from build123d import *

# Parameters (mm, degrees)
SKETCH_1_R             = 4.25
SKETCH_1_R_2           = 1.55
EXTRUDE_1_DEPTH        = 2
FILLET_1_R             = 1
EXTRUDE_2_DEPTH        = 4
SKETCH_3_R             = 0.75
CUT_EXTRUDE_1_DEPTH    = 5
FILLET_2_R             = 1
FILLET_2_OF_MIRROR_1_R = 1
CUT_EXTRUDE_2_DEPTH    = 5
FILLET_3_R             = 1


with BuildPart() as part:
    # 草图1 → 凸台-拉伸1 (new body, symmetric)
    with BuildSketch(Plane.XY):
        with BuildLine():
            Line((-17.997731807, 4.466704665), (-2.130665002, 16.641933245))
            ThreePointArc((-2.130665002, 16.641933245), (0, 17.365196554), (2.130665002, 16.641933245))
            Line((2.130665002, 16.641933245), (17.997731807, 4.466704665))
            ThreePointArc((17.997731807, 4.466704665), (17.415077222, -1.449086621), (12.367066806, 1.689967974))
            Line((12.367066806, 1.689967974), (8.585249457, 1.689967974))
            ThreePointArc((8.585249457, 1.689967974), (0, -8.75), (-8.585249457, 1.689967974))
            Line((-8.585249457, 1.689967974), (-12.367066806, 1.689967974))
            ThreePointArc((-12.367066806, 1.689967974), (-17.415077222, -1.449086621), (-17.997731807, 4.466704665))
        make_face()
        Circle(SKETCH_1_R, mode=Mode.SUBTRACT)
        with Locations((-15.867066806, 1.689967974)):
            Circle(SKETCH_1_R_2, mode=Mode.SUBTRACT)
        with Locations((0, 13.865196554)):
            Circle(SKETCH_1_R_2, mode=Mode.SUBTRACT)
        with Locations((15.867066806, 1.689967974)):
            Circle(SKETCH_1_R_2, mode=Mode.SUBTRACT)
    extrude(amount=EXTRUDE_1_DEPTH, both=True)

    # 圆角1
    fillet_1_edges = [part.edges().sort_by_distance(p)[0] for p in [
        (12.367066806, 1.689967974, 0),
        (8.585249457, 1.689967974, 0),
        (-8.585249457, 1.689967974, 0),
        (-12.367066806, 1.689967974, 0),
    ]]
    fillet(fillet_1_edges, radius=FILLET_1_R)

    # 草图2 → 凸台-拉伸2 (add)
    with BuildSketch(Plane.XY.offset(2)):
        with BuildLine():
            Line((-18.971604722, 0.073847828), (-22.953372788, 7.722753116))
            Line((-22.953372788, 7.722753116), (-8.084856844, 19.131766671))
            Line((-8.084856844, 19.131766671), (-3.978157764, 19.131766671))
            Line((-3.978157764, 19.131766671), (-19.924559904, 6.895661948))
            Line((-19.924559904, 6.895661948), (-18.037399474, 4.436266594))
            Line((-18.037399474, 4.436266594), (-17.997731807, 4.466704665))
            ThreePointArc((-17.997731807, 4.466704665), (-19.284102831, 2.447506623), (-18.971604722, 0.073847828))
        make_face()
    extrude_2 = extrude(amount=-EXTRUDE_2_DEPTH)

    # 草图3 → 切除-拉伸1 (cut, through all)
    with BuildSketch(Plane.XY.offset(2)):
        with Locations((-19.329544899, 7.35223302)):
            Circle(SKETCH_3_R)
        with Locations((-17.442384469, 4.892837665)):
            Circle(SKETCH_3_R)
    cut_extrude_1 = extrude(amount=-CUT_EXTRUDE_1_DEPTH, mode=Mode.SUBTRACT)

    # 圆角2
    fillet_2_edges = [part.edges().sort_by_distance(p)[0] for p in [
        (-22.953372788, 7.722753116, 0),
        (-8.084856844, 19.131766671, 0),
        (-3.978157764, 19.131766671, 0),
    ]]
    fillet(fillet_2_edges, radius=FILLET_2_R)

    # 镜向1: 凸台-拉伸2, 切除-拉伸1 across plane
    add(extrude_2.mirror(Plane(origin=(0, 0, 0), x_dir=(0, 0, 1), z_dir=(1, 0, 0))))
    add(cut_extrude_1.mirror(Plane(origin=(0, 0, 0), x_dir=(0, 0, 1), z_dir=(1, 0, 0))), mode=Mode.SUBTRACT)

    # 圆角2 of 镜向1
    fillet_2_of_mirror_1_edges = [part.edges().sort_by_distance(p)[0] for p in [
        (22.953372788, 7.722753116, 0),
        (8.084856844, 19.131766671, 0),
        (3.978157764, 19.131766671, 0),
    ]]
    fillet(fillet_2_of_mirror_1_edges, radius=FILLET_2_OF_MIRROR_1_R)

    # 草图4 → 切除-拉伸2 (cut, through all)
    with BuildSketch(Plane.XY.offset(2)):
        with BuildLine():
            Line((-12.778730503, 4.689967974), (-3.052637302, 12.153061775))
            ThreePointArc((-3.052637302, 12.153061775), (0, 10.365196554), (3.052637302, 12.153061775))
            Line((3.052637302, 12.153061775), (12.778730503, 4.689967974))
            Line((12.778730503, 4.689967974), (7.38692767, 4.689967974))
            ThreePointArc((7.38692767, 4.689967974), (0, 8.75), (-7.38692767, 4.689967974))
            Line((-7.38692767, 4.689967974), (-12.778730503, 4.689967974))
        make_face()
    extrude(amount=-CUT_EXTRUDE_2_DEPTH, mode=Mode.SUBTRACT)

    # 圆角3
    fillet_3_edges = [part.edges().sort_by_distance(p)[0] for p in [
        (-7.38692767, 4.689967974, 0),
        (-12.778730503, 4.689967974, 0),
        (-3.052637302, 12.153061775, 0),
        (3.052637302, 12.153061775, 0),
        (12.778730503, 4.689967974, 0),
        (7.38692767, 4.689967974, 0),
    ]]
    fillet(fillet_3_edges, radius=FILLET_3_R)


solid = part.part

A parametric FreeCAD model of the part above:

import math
import FreeCAD as App
import Part
import Sketcher
Q = App.Units.Quantity


def edges_at(feature, points):
    """Names of the edges that pass closest to the given points."""
    edges = feature.Shape.Edges
    near = lambda p: min(range(len(edges)), key=lambda i: edges[i].distToShape(Part.Vertex(*p))[0])
    return sorted({f"Edge{near(p) + 1}" for p in points})

doc = App.newDocument("Part")
params = doc.addObject("Spreadsheet::Sheet", "Params")
for row, (alias, value) in enumerate([
    ("sketch1_diameter", "3.1 mm"),
    ("sketch1_diameter2", "8.5 mm"),
    ("sketch1_radius", "3.5 mm"),
    ("sketch1_radius2", "8.75 mm"),
    ("sketch1_length", "20 mm"),
    ("pad1_length", "4 mm"),
    ("fillet_radius", "1 mm"),
    ("sketch2_radius", "3.5 mm"),
    ("sketch2_length", "3.1 mm"),
    ("sketch2_length2", "20.1 mm"),
    ("sketch2_length3", "0.05 mm"),
    ("pad2_length", "4 mm"),
    ("sketch3_diameter", "1.5 mm"),
    ("fillet2_radius", "1 mm"),
    ("fillet3_radius", "1 mm"),
    ("sketch4_radius", "3.5 mm"),
    ("sketch4_radius2", "8.75 mm"),
    ("fillet4_radius", "1 mm"),
], start=1):
    params.set(f"A{row}", alias)
    params.set(f"B{row}", "=" + value)
    params.setAlias(f"B{row}", alias)

body = doc.addObject("PartDesign::Body", "Body")

sketch1 = body.newObject("Sketcher::SketchObject", "Sketch")
sketch1.AttachmentSupport = (doc.getObject("XY_Plane"), [""])
sketch1.MapMode = "FlatFace"
sketch1.addGeometry([
    Part.LineSegment(App.Vector(-2.1, 16.6, 0), App.Vector(-18, 4.5, 0)),
    Part.ArcOfCircle(Part.Circle(App.Vector(-15.9, 1.7, 0), App.Vector(0, 0, 1), 3.5), math.radians(127), math.radians(360)),
    Part.LineSegment(App.Vector(-12.4, 1.7, 0), App.Vector(-8.6, 1.7, 0)),
    Part.ArcOfCircle(Part.Circle(App.Vector(0, 0, 0), App.Vector(0, 0, 1), 8.8), math.radians(169), math.radians(371)),
    Part.LineSegment(App.Vector(8.6, 1.7, 0), App.Vector(12.4, 1.7, 0)),
    Part.ArcOfCircle(Part.Circle(App.Vector(15.9, 1.7, 0), App.Vector(0, 0, 1), 3.5), math.radians(180), math.radians(413)),
    Part.LineSegment(App.Vector(18, 4.5, 0), App.Vector(2.1, 16.6, 0)),
    Part.ArcOfCircle(Part.Circle(App.Vector(0, 13.9, 0), App.Vector(0, 0, 1), 3.5), math.radians(53), math.radians(127)),
    Part.Circle(App.Vector(15.9, 1.7, 0), App.Vector(0, 0, 1), 1.6),
    Part.Circle(App.Vector(0, 0, 0), App.Vector(0, 0, 1), 4.2),
    Part.Circle(App.Vector(-15.9, 1.7, 0), App.Vector(0, 0, 1), 1.6),
    Part.Circle(App.Vector(0, 13.9, 0), App.Vector(0, 0, 1), 1.6),
], False)
sketch1.addConstraint([
    Sketcher.Constraint("Tangent", 0, 2, 1, 1),
    Sketcher.Constraint("Coincident", 1, 2, 2, 1),
    Sketcher.Constraint("Coincident", 2, 2, 3, 1),
    Sketcher.Constraint("Coincident", 3, 2, 4, 1),
    Sketcher.Constraint("Coincident", 4, 2, 5, 1),
    Sketcher.Constraint("Tangent", 5, 2, 6, 1),
    Sketcher.Constraint("Tangent", 6, 2, 7, 1),
    Sketcher.Constraint("Tangent", 7, 2, 0, 1),
    Sketcher.Constraint("Horizontal", 2),
    Sketcher.Constraint("Horizontal", 4),
    Sketcher.Constraint("Coincident", 3, 3, -1, 1),
    Sketcher.Constraint("Coincident", 9, 3, -1, 1),
    Sketcher.Constraint("Coincident", 8, 3, 5, 3),
    Sketcher.Constraint("Coincident", 10, 3, 1, 3),
    Sketcher.Constraint("Coincident", 11, 3, 7, 3),
    Sketcher.Constraint("Equal", 1, 5),
    Sketcher.Constraint("Equal", 5, 7),
    Sketcher.Constraint("Equal", 8, 10),
    Sketcher.Constraint("Equal", 10, 11),
    Sketcher.Constraint("Symmetric", 1, 3, 5, 3, -2),
    Sketcher.Constraint("PointOnObject", 7, 3, -2),
    Sketcher.Constraint("Horizontal", 10, 3, 1, 2),
    Sketcher.Constraint("Horizontal", 2, 2, 3, 2),
    Sketcher.Constraint("Diameter", 8, 3.1),
    Sketcher.Constraint("Diameter", 9, 8.5),
    Sketcher.Constraint("Radius", 1, 3.5),
    Sketcher.Constraint("Radius", 3, 8.75),
    Sketcher.Constraint("Distance", 0, 20.0),
    Sketcher.Constraint("Angle", 0, Q("-142.5 deg")),
    Sketcher.Constraint("DistanceX", 2, 1, 2, 2, 3.781817),
])
sketch1.setExpression("Constraints[23]", "Params.sketch1_diameter")
sketch1.setExpression("Constraints[24]", "Params.sketch1_diameter2")
sketch1.setExpression("Constraints[25]", "Params.sketch1_radius")
sketch1.setExpression("Constraints[26]", "Params.sketch1_radius2")
sketch1.setExpression("Constraints[27]", "Params.sketch1_length")
pad1 = body.newObject("PartDesign::Pad", "Pad")
pad1.Profile = sketch1
pad1.setExpression("Length", "Params.pad1_length")
pad1.Midplane = True
doc.recompute()

fillet = body.newObject("PartDesign::Fillet", "Fillet")
fillet.Base = (pad1, edges_at(pad1, [
    (12.367, 1.69, 0),
    (8.585, 1.69, 0),
    (-8.585, 1.69, 0),
    (-12.367, 1.69, 0),
]))
fillet.setExpression("Radius", "Params.fillet_radius")

sketch2 = body.newObject("Sketcher::SketchObject", "Sketch001")
sketch2.AttachmentSupport = (doc.getObject("XY_Plane"), [""])
sketch2.MapMode = "FlatFace"
sketch2.AttachmentOffset = App.Placement(App.Vector(0, 0, 2), App.Rotation())
sketch2.addGeometry([
    Part.LineSegment(App.Vector(-22.953, 7.723, 0), App.Vector(-18.972, 0.074, 0)),
    Part.ArcOfCircle(Part.Circle(App.Vector(-15.867, 1.69, 0), App.Vector(0, 0, 1), 3.5), math.radians(127), math.radians(208)),
    Part.LineSegment(App.Vector(-17.998, 4.467, 0), App.Vector(-18.037, 4.436, 0)),
    Part.LineSegment(App.Vector(-18.037, 4.436, 0), App.Vector(-19.925, 6.896, 0)),
    Part.LineSegment(App.Vector(-19.925, 6.896, 0), App.Vector(-3.978, 19.132, 0)),
    Part.LineSegment(App.Vector(-3.978, 19.132, 0), App.Vector(-8.085, 19.132, 0)),
    Part.LineSegment(App.Vector(-8.085, 19.132, 0), App.Vector(-22.953, 7.723, 0)),
], False)
sketch2.addConstraint([
    Sketcher.Constraint("Tangent", 0, 2, 1, 2),
    Sketcher.Constraint("Tangent", 1, 1, 2, 1),
    Sketcher.Constraint("Coincident", 2, 2, 3, 1),
    Sketcher.Constraint("Coincident", 3, 2, 4, 1),
    Sketcher.Constraint("Coincident", 4, 2, 5, 1),
    Sketcher.Constraint("Coincident", 5, 2, 6, 1),
    Sketcher.Constraint("Coincident", 6, 2, 0, 1),
    Sketcher.Constraint("Horizontal", 5),
    Sketcher.Constraint("Perpendicular", 2, 3),
    Sketcher.Constraint("Perpendicular", 3, 4),
    Sketcher.Constraint("Parallel", 4, 6),
    Sketcher.Constraint("Radius", 1, 3.5),
    Sketcher.Constraint("Angle", 0, Q("-62.5 deg")),
    Sketcher.Constraint("Angle", 3, Q("127.5 deg")),
    Sketcher.Constraint("Distance", 3, 3.1),
    Sketcher.Constraint("Distance", 4, 20.1),
    Sketcher.Constraint("Distance", 2, 0.05),
    Sketcher.Constraint("DistanceX", 5, 2, 5, 1, 4.106699),
    Sketcher.Constraint("DistanceX", 2, 2, -1, 1, 18.037399),
    Sketcher.Constraint("DistanceY", -1, 1, 3, 2, 6.895662),
])
sketch2.setExpression("Constraints[11]", "Params.sketch2_radius")
sketch2.setExpression("Constraints[14]", "Params.sketch2_length")
sketch2.setExpression("Constraints[15]", "Params.sketch2_length2")
sketch2.setExpression("Constraints[16]", "Params.sketch2_length3")
pad2 = body.newObject("PartDesign::Pad", "Pad001")
pad2.Profile = sketch2
pad2.setExpression("Length", "Params.pad2_length")
pad2.Reversed = True

sketch3 = body.newObject("Sketcher::SketchObject", "Sketch002")
sketch3.AttachmentSupport = (doc.getObject("XY_Plane"), [""])
sketch3.MapMode = "FlatFace"
sketch3.AttachmentOffset = App.Placement(App.Vector(0, 0, 2), App.Rotation())
sketch3.addGeometry([
    Part.Circle(App.Vector(-19.3, 7.4, 0), App.Vector(0, 0, 1), 0.8),
    Part.Circle(App.Vector(-17.4, 4.9, 0), App.Vector(0, 0, 1), 0.8),
], False)
sketch3.addConstraint([
    Sketcher.Constraint("Equal", 0, 1),
    Sketcher.Constraint("Diameter", 0, 1.5),
    Sketcher.Constraint("DistanceX", 0, 3, 1, 3, 1.88716),
    Sketcher.Constraint("DistanceX", 0, 3, -1, 1, 19.329545),
    Sketcher.Constraint("DistanceY", -1, 1, 0, 3, 7.352233),
    Sketcher.Constraint("DistanceY", -1, 1, 1, 3, 4.892838),
])
sketch3.setExpression("Constraints[1]", "Params.sketch3_diameter")
pocket1 = body.newObject("PartDesign::Pocket", "Pocket")
pocket1.Profile = sketch3
pocket1.Type = "ThroughAll"
doc.recompute()

fillet2 = body.newObject("PartDesign::Fillet", "Fillet001")
fillet2.Base = (pocket1, edges_at(pocket1, [(-22.953, 7.723, 0), (-8.085, 19.132, 0), (-3.978, 19.132, 0)]))
fillet2.setExpression("Radius", "Params.fillet2_radius")
doc.recompute()

mirrored = body.newObject("PartDesign::Mirrored", "Mirrored")
mirrored.Originals = [pad2, pocket1]
mirrored.MirrorPlane = (doc.getObject("YZ_Plane"), [""])
body.Tip = mirrored
doc.recompute()

fillet3 = body.newObject("PartDesign::Fillet", "Fillet002")
fillet3.Base = (mirrored, edges_at(mirrored, [(22.953, 7.723, 0), (8.085, 19.132, 0), (3.978, 19.132, 0)]))
fillet3.setExpression("Radius", "Params.fillet3_radius")

sketch4 = body.newObject("Sketcher::SketchObject", "Sketch003")
sketch4.AttachmentSupport = (doc.getObject("XY_Plane"), [""])
sketch4.MapMode = "FlatFace"
sketch4.AttachmentOffset = App.Placement(App.Vector(0, 0, 2), App.Rotation())
sketch4.addGeometry([
    Part.LineSegment(App.Vector(-3.1, 12.2, 0), App.Vector(-12.8, 4.7, 0)),
    Part.LineSegment(App.Vector(-12.8, 4.7, 0), App.Vector(-7.4, 4.7, 0)),
    Part.ArcOfCircle(Part.Circle(App.Vector(0, 0, 0), App.Vector(0, 0, 1), 8.8), math.radians(32), math.radians(148)),
    Part.LineSegment(App.Vector(7.4, 4.7, 0), App.Vector(12.8, 4.7, 0)),
    Part.LineSegment(App.Vector(12.8, 4.7, 0), App.Vector(3.1, 12.2, 0)),
    Part.ArcOfCircle(Part.Circle(App.Vector(0, 13.9, 0), App.Vector(0, 0, 1), 3.5), math.radians(-151), math.radians(-29)),
], False)
sketch4.addConstraint([
    Sketcher.Constraint("Coincident", 0, 2, 1, 1),
    Sketcher.Constraint("Coincident", 1, 2, 2, 2),
    Sketcher.Constraint("Coincident", 2, 1, 3, 1),
    Sketcher.Constraint("Coincident", 3, 2, 4, 1),
    Sketcher.Constraint("Coincident", 4, 2, 5, 2),
    Sketcher.Constraint("Coincident", 5, 1, 0, 1),
    Sketcher.Constraint("Horizontal", 1),
    Sketcher.Constraint("Horizontal", 3),
    Sketcher.Constraint("Coincident", 2, 3, -1, 1),
    Sketcher.Constraint("Symmetric", 0, 2, 3, 2, -2),
    Sketcher.Constraint("Symmetric", 4, 2, 5, 1, -2),
    Sketcher.Constraint("Radius", 5, 3.5),
    Sketcher.Constraint("Radius", 2, 8.75),
    Sketcher.Constraint("Angle", 0, Q("-142.5 deg")),
    Sketcher.Constraint("DistanceX", 1, 1, 1, 2, 5.391803),
    Sketcher.Constraint("DistanceX", 0, 2, -1, 1, 12.778731),
    Sketcher.Constraint("DistanceY", -1, 1, 4, 2, 12.153062),
])
sketch4.setExpression("Constraints[11]", "Params.sketch4_radius")
sketch4.setExpression("Constraints[12]", "Params.sketch4_radius2")
pocket2 = body.newObject("PartDesign::Pocket", "Pocket001")
pocket2.Profile = sketch4
pocket2.Type = "ThroughAll"
doc.recompute()

fillet4 = body.newObject("PartDesign::Fillet", "Fillet003")
fillet4.Base = (pocket2, edges_at(pocket2, [
    (-7.387, 4.69, 0),
    (-12.779, 4.69, 0),
    (-3.053, 12.153, 0),
    (3.053, 12.153, 0),
    (12.779, 4.69, 0),
    (7.387, 4.69, 0),
]))
fillet4.setExpression("Radius", "Params.fillet4_radius")

doc.recompute()
